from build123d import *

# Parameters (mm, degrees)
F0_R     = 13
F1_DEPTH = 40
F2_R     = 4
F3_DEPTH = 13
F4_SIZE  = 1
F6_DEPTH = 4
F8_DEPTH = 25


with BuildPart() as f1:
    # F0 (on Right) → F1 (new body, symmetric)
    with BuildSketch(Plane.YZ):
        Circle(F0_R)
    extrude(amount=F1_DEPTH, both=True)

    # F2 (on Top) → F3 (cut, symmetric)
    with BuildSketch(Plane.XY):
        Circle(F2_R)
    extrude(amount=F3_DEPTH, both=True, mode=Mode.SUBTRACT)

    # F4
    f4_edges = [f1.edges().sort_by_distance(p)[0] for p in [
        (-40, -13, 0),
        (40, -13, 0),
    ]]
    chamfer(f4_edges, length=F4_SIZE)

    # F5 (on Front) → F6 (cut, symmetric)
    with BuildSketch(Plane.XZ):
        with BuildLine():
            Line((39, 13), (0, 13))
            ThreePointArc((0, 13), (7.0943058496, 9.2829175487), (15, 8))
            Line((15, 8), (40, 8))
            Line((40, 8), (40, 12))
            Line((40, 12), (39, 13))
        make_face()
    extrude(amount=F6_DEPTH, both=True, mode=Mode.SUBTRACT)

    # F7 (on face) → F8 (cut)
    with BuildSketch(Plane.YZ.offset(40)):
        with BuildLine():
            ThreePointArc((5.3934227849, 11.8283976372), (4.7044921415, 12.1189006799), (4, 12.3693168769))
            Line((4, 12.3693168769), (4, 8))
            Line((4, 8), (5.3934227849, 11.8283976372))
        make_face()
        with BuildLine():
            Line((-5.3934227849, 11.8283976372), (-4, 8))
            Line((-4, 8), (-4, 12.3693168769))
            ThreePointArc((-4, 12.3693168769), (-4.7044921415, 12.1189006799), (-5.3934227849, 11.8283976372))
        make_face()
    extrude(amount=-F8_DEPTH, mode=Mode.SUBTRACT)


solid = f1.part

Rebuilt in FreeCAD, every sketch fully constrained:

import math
import FreeCAD as App
import Part
import Sketcher

V = App.Vector
Q = App.Units.Quantity


def edges_at(feature, points):
    """Names of the edges that pass closest to the given points."""
    edges = feature.Shape.Edges
    near = lambda p: min(range(len(edges)), key=lambda i: edges[i].distToShape(Part.Vertex(*p))[0])
    return sorted({f"Edge{near(p) + 1}" for p in points})

doc = App.newDocument("Part")
body = doc.addObject("PartDesign::Body", "Body")

# Sketch on YZ plane
sketch1 = body.newObject("Sketcher::SketchObject", "Sketch")
sketch1.AttachmentSupport = (doc.getObject("YZ_Plane"), [""])
sketch1.MapMode = "FlatFace"
sketch1.addGeometry(Part.Circle(V(0, 0, 0), V(0, 0, 1), 13), False)
sketch1.addConstraint([
    Sketcher.Constraint("Coincident", 0, 3, -1, 1),
    Sketcher.Constraint("Diameter", 0, 26.0),
])
pad1 = body.newObject("PartDesign::Pad", "Pad")
pad1.Profile = sketch1
pad1.Length = 80
pad1.Midplane = True

# Sketch on XY plane
sketch2 = body.newObject("Sketcher::SketchObject", "Sketch001")
sketch2.AttachmentSupport = (doc.getObject("XY_Plane"), [""])
sketch2.MapMode = "FlatFace"
sketch2.addGeometry(Part.Circle(V(0, 0, 0), V(0, 0, 1), 4), False)
sketch2.addConstraint([
    Sketcher.Constraint("Coincident", 0, 3, -1, 1),
    Sketcher.Constraint("Diameter", 0, 8.0),
])
pocket1 = body.newObject("PartDesign::Pocket", "Pocket")
pocket1.Profile = sketch2
pocket1.Length = 26
pocket1.Midplane = True
doc.recompute()

chamfer = body.newObject("PartDesign::Chamfer", "Chamfer")
chamfer.Base = (pocket1, edges_at(pocket1, [(-40, -13, 0), (40, -13, 0)]))
chamfer.Size = 1

# Sketch on XZ plane
sketch3 = body.newObject("Sketcher::SketchObject", "Sketch002")
sketch3.AttachmentSupport = (doc.getObject("XZ_Plane"), [""])
sketch3.MapMode = "FlatFace"
sketch3.addGeometry([
    Part.LineSegment(V(39, 13, 0), V(0, 13, 0)),  # 0
    Part.ArcOfCircle(Part.Circle(V(15, 33, 0), V(0, 0, 1), 25), math.radians(-127), math.radians(-90)),  # 1
    Part.LineSegment(V(15, 8, 0), V(40, 8, 0)),  # 2
    Part.LineSegment(V(40, 8, 0), V(40, 12, 0)),  # 3
    Part.LineSegment(V(40, 12, 0), V(39, 13, 0)),  # 4
], False)
sketch3.addConstraint([
    Sketcher.Constraint("Coincident", 0, 2, 1, 1),
    Sketcher.Constraint("Tangent", 1, 2, 2, 1),
    Sketcher.Constraint("Coincident", 2, 2, 3, 1),
    Sketcher.Constraint("Coincident", 3, 2, 4, 1),
    Sketcher.Constraint("Coincident", 4, 2, 0, 1),
    Sketcher.Constraint("Horizontal", 0),
    Sketcher.Constraint("Horizontal", 2),
    Sketcher.Constraint("Vertical", 3),
    Sketcher.Constraint("PointOnObject", 0, 2, -2),
    Sketcher.Constraint("Radius", 1, 25.0),
    Sketcher.Constraint("DistanceX", 0, 2, 0, 1, 39.0),
    Sketcher.Constraint("DistanceX", 2, 1, 2, 2, 25.0),
    Sketcher.Constraint("DistanceY", 3, 1, 3, 2, 4.0),
    Sketcher.Constraint("Angle", 4, Q("135 deg")),
    Sketcher.Constraint("DistanceY", -1, 1, 1, 3, 33.0),
])
pocket2 = body.newObject("PartDesign::Pocket", "Pocket001")
pocket2.Profile = sketch3
pocket2.Length = 8
pocket2.Midplane = True

# Sketch on YZ plane
sketch4 = body.newObject("Sketcher::SketchObject", "Sketch003")
sketch4.AttachmentSupport = (doc.getObject("YZ_Plane"), [""])
sketch4.MapMode = "FlatFace"
sketch4.AttachmentOffset = App.Placement(V(0, 0, 40), App.Rotation())
sketch4.addGeometry([
    Part.ArcOfCircle(Part.Circle(V(0, 0, 0), V(0, 0, 1), 13), math.radians(65.49), math.radians(72.08)),  # 0
    Part.LineSegment(V(4, 12.4, 0), V(4, 8, 0)),  # 1
    Part.LineSegment(V(4, 8, 0), V(5.4, 11.8, 0)),  # 2
    Part.LineSegment(V(-5.4, 11.8, 0), V(-4, 8, 0)),  # 3
    Part.LineSegment(V(-4, 8, 0), V(-4, 12.4, 0)),  # 4
    Part.ArcOfCircle(Part.Circle(V(0, 0, 0), V(0, 0, 1), 13), math.radians(107.92), math.radians(114.51)),  # 5
], False)
sketch4.addConstraint([
    Sketcher.Constraint("Coincident", 0, 2, 1, 1),
    Sketcher.Constraint("Coincident", 1, 2, 2, 1),
    Sketcher.Constraint("Coincident", 2, 2, 0, 1),
    Sketcher.Constraint("Coincident", 3, 2, 4, 1),
    Sketcher.Constraint("Coincident", 4, 2, 5, 1),
    Sketcher.Constraint("Coincident", 5, 2, 3, 1),
    Sketcher.Constraint("Vertical", 1),
    Sketcher.Constraint("Vertical", 4),
    Sketcher.Constraint("Coincident", 0, 3, -1, 1),
    Sketcher.Constraint("Coincident", 5, 3, -1, 1),
    Sketcher.Constraint("Equal", 0, 5),
    Sketcher.Constraint("Symmetric", 1, 2, 3, 2, -2),
    Sketcher.Constraint("Horizontal", 2, 2, 5, 2),
    Sketcher.Constraint("Radius", 0, 13.0),
    Sketcher.Constraint("Angle", 2, Q("70 deg")),
    Sketcher.Constraint("DistanceX", -1, 1, 0, 2, 4.0),
    Sketcher.Constraint("DistanceY", -1, 1, 1, 2, 8.0),
])
pocket3 = body.newObject("PartDesign::Pocket", "Pocket002")
pocket3.Profile = sketch4
pocket3.Length = 25

doc.recompute()
